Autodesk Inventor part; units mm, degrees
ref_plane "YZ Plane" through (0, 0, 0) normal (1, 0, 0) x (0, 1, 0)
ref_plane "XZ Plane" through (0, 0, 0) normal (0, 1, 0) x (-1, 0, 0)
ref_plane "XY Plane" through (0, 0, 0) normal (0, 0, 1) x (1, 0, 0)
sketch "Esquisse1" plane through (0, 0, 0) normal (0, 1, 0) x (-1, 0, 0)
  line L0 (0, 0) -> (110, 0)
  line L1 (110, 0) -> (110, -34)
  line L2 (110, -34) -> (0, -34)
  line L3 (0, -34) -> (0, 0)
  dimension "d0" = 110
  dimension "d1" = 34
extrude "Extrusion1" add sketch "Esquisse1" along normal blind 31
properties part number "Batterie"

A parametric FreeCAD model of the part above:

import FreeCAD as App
import Part
import Sketcher

doc = App.newDocument("Part")
body = doc.addObject("PartDesign::Body", "Body")

# Sketch on XZ plane
sketch1 = body.newObject("Sketcher::SketchObject", "Sketch")
sketch1.AttachmentSupport = (doc.getObject("XZ_Plane"), [""])
sketch1.MapMode = "FlatFace"
sketch1.addGeometry(Part.LineSegment(App.Vector(-110, 0, 0), App.Vector(0, 0, 0)), False)
sketch1.addGeometry(Part.LineSegment(App.Vector(0, 0, 0), App.Vector(0, -34, 0)), False)
sketch1.addGeometry(Part.LineSegment(App.Vector(0, -34, 0), App.Vector(-110, -34, 0)), False)
sketch1.addGeometry(Part.LineSegment(App.Vector(-110, -34, 0), App.Vector(-110, 0, 0)), False)
sketch1.addConstraint(Sketcher.Constraint("Coincident", 0, 2, 1, 1))
sketch1.addConstraint(Sketcher.Constraint("Coincident", 1, 2, 2, 1))
sketch1.addConstraint(Sketcher.Constraint("Coincident", 2, 2, 3, 1))
sketch1.addConstraint(Sketcher.Constraint("Coincident", 3, 2, 0, 1))
sketch1.addConstraint(Sketcher.Constraint("Horizontal", 0))
sketch1.addConstraint(Sketcher.Constraint("Vertical", 1))
sketch1.addConstraint(Sketcher.Constraint("Horizontal", 2))
sketch1.addConstraint(Sketcher.Constraint("Vertical", 3))
sketch1.addConstraint(Sketcher.Constraint("Coincident", 0, 2, -1, 1))
sketch1.addConstraint(Sketcher.Constraint("DistanceX", 0, 1, 0, 2, 110.0))
sketch1.addConstraint(Sketcher.Constraint("DistanceY", 1, 2, 1, 1, 34.0))
pad1 = body.newObject("PartDesign::Pad", "Pad")
pad1.Profile = sketch1
pad1.Length = 31
pad1.Reversed = True

doc.recompute()
